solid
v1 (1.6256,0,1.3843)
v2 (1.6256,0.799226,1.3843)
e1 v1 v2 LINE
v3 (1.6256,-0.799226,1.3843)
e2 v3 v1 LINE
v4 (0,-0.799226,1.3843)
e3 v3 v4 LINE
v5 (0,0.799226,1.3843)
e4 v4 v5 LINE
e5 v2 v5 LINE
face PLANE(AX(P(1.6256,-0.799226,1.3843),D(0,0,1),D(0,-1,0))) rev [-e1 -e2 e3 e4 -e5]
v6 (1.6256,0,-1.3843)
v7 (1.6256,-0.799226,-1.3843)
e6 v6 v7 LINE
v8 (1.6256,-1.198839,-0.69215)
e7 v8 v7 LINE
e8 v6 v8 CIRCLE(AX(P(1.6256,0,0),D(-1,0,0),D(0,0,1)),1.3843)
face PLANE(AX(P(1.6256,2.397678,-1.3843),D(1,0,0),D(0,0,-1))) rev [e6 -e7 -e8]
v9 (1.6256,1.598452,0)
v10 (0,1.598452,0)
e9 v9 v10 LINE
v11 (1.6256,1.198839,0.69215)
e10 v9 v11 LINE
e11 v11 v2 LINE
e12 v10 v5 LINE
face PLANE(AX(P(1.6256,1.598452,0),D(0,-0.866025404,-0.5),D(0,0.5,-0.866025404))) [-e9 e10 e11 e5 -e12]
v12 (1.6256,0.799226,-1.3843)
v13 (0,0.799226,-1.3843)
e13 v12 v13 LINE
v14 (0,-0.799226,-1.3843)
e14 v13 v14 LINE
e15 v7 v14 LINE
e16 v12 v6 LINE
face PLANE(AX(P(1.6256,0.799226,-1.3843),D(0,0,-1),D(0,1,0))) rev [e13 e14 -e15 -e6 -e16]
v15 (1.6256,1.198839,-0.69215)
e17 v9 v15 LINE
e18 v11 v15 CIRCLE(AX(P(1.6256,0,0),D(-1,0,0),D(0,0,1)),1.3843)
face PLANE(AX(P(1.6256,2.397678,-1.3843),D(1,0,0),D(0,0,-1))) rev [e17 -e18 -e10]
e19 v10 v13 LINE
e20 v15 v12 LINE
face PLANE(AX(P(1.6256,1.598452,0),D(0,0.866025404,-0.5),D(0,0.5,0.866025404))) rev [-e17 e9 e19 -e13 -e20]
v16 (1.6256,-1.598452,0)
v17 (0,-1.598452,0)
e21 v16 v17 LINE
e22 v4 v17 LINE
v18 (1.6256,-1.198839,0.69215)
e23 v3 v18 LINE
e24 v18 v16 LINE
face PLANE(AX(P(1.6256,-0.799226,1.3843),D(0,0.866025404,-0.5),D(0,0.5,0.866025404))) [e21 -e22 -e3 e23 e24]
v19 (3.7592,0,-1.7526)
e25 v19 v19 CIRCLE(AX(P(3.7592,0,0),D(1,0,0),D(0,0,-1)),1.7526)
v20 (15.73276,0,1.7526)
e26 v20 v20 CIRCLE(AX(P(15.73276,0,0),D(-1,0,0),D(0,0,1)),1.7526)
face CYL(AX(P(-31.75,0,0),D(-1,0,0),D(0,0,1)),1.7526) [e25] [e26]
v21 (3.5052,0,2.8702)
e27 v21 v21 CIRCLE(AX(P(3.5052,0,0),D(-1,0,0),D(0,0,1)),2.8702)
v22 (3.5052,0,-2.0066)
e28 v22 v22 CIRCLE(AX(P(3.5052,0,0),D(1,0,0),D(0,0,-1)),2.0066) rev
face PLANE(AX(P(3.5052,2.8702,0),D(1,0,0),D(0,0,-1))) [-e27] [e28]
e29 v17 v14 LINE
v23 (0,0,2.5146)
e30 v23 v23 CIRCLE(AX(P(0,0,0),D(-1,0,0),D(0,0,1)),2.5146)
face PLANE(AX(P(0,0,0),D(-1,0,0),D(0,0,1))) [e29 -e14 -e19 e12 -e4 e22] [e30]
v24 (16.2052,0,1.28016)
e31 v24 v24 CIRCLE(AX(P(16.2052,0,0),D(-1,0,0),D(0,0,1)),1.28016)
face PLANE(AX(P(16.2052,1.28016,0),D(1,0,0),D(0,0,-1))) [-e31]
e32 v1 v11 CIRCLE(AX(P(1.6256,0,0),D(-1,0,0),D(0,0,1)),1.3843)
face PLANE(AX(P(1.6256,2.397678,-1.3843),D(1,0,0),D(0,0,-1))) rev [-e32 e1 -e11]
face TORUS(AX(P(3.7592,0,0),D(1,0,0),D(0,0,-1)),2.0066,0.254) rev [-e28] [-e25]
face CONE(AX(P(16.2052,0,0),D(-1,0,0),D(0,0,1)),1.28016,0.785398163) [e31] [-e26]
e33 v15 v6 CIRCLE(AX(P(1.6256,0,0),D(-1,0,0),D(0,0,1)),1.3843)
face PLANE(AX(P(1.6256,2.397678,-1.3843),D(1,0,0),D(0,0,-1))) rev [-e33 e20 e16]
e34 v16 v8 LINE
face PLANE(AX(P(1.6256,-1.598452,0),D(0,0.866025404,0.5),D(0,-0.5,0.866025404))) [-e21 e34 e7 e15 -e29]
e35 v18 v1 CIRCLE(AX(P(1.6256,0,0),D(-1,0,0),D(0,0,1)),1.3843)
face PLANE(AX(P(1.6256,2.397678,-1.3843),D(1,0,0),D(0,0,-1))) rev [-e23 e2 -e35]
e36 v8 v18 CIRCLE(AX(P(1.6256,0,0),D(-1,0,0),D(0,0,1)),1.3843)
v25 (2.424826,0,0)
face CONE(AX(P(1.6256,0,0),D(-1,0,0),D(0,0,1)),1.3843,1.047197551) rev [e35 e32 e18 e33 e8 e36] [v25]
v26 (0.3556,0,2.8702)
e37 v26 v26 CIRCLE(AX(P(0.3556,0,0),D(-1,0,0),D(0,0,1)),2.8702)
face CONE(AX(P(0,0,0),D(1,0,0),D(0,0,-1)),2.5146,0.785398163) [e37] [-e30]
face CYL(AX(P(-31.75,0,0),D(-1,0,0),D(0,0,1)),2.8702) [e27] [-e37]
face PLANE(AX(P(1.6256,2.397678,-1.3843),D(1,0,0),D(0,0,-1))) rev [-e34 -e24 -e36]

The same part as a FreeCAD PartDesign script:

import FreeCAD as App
import Part
import Sketcher
Q = App.Units.Quantity


def edges_at(feature, points):
    """Names of the edges that pass closest to the given points."""
    edges = feature.Shape.Edges
    near = lambda p: min(range(len(edges)), key=lambda i: edges[i].distToShape(Part.Vertex(*p))[0])
    return sorted({f"Edge{near(p) + 1}" for p in points})


def add_polygon(sketch, points):
    """Adds a closed chain of lines whose ends are joined by coincident constraints."""
    first, n = sketch.GeometryCount, len(points)
    for a, b in zip(points, points[1:] + points[:1]):
        sketch.addGeometry(Part.LineSegment(App.Vector(*a, 0), App.Vector(*b, 0)), False)
    for i in range(n):
        sketch.addConstraint(Sketcher.Constraint("Coincident", first + i, 2, first + (i + 1) % n, 1))

doc = App.newDocument("Part")
params = doc.addObject("Spreadsheet::Sheet", "Params")
for row, (alias, value) in enumerate([
    ("sketch1_width", "0.638 in"),
    ("sketch1_width2", "0.124 in"),
    ("sketch1_height", "0.099 in"),
    ("sketch1_height2", "0.044 in"),
    ("revolution_angle", "360 deg"),
    ("fillet_radius", "0.01 in"),
    ("sketch2_width", "0.064 in"),
    ("groove_angle", "360 deg"),
    ("pocket1_length", "0.064 in"),
], start=1):
    params.set(f"A{row}", alias)
    params.set(f"B{row}", "=" + value)
    params.setAlias(f"B{row}", alias)

body = doc.addObject("PartDesign::Body", "Body")

# Sketch on XY plane
sketch1 = doc.addObject("Sketcher::SketchObject", "Sketch")
body.addObject(sketch1)
sketch1.AttachmentSupport = (doc.XY_Plane, [""])
sketch1.MapMode = "FlatFace"
add_polygon(sketch1, [(0, 2.5146), (0, 0), (16.2052, 0), (16.2052, 1.28016), (15.73276, 1.7526), (3.5052, 1.7526), (3.5052, 2.8702), (0.3556, 2.8702)])  # lines 0-7
sketch1.addConstraint(Sketcher.Constraint("Vertical", 0))
sketch1.addConstraint(Sketcher.Constraint("Horizontal", 1))
sketch1.addConstraint(Sketcher.Constraint("Vertical", 2))
sketch1.addConstraint(Sketcher.Constraint("Horizontal", 4))
sketch1.addConstraint(Sketcher.Constraint("Vertical", 5))
sketch1.addConstraint(Sketcher.Constraint("Horizontal", 6))
sketch1.addConstraint(Sketcher.Constraint("Coincident", 0, 2, -1, 1))
sketch1.addConstraint(Sketcher.Constraint("Perpendicular", 3, 7))
sketch1.addConstraint(Sketcher.Constraint("Angle", 3, Q("135 deg")))
sketch1.addConstraint(Sketcher.Constraint("DistanceX", 4, 2, 2, 2, Q("0.5 in")))
sketch1.addConstraint(Sketcher.Constraint("DistanceX", 1, 1, 1, 2, Q("0.638 in")))
sketch1.addConstraint(Sketcher.Constraint("DistanceX", 6, 2, 6, 1, Q("0.124 in")))
sketch1.addConstraint(Sketcher.Constraint("DistanceY", 0, 2, 0, 1, Q("0.099 in")))
sketch1.addConstraint(Sketcher.Constraint("DistanceY", 5, 1, 5, 2, Q("0.044 in")))
sketch1.addConstraint(Sketcher.Constraint("DistanceX", 4, 2, 4, 1, Q("0.4814 in")))
sketch1.setExpression("Constraints[18]", "Params.sketch1_width")
sketch1.setExpression("Constraints[19]", "Params.sketch1_width2")
sketch1.setExpression("Constraints[20]", "Params.sketch1_height")
sketch1.setExpression("Constraints[21]", "Params.sketch1_height2")
revolution = doc.addObject("PartDesign::Revolution", "Revolution")
body.addObject(revolution)
revolution.Profile = sketch1
revolution.ReferenceAxis = (sketch1, ["H_Axis"])
revolution.setExpression("Angle", "Params.revolution_angle")
doc.recompute()

fillet = doc.addObject("PartDesign::Fillet", "Fillet")
body.addObject(fillet)
fillet.Base = (revolution, edges_at(revolution, [(3.505, -1.753, 0)]))
fillet.setExpression("Radius", "Params.fillet_radius")

# Sketch on XY plane
sketch2 = doc.addObject("Sketcher::SketchObject", "Sketch001")
body.addObject(sketch2)
sketch2.AttachmentSupport = (doc.XY_Plane, [""])
sketch2.MapMode = "FlatFace"
add_polygon(sketch2, [(1.6256, 1.3843), (0, 1.3843), (0, 0), (2.424826, 0)])  # lines 0-3
sketch2.addConstraint(Sketcher.Constraint("Horizontal", 0))
sketch2.addConstraint(Sketcher.Constraint("Vertical", 1))
sketch2.addConstraint(Sketcher.Constraint("Horizontal", 2))
sketch2.addConstraint(Sketcher.Constraint("Coincident", 1, 2, -1, 1))
sketch2.addConstraint(Sketcher.Constraint("Angle", 3, Q("120 deg")))
sketch2.addConstraint(Sketcher.Constraint("DistanceX", 0, 2, 0, 1, Q("0.064 in")))
sketch2.addConstraint(Sketcher.Constraint("DistanceY", 1, 2, 1, 1, Q("0.0545 in")))
sketch2.setExpression("Constraints[9]", "Params.sketch2_width")
groove = doc.addObject("PartDesign::Groove", "Groove")
body.addObject(groove)
groove.Profile = sketch2
groove.ReferenceAxis = (sketch2, ["H_Axis"])
groove.setExpression("Angle", "Params.groove_angle")

# Sketch on YZ plane
sketch3 = doc.addObject("Sketcher::SketchObject", "Sketch002")
body.addObject(sketch3)
sketch3.AttachmentSupport = (doc.YZ_Plane, [""])
sketch3.MapMode = "FlatFace"
add_polygon(sketch3, [(1.598452, 0), (0.799226, -1.3843), (-0.799226, -1.3843), (-1.598452, 0), (-0.799226, 1.3843), (0.799226, 1.3843)])  # lines 0-5
sketch3.addConstraint(Sketcher.Constraint("Horizontal", 1))
sketch3.addConstraint(Sketcher.Constraint("Horizontal", 4))
sketch3.addConstraint(Sketcher.Constraint("Symmetric", 0, 2, 3, 2, -1, 1))
sketch3.addConstraint(Sketcher.Constraint("Symmetric", 2, 2, 5, 2, -1, 1))
sketch3.addConstraint(Sketcher.Constraint("PointOnObject", 2, 2, -1))
sketch3.addConstraint(Sketcher.Constraint("Parallel", 2, 5))
sketch3.addConstraint(Sketcher.Constraint("Vertical", 1, 2, 3, 2))
sketch3.addConstraint(Sketcher.Constraint("Angle", 0, Q("-120 deg")))
sketch3.addConstraint(Sketcher.Constraint("DistanceY", 1, 2, 3, 2, Q("0.109 in")))
sketch3.addConstraint(Sketcher.Constraint("DistanceX", 1, 2, 1, 1, Q("1.598452 mm")))
pocket1 = doc.addObject("PartDesign::Pocket", "Pocket")
body.addObject(pocket1)
pocket1.Profile = sketch3
pocket1.setExpression("Length", "Params.pocket1_length")
pocket1.Reversed = True

doc.recompute()
